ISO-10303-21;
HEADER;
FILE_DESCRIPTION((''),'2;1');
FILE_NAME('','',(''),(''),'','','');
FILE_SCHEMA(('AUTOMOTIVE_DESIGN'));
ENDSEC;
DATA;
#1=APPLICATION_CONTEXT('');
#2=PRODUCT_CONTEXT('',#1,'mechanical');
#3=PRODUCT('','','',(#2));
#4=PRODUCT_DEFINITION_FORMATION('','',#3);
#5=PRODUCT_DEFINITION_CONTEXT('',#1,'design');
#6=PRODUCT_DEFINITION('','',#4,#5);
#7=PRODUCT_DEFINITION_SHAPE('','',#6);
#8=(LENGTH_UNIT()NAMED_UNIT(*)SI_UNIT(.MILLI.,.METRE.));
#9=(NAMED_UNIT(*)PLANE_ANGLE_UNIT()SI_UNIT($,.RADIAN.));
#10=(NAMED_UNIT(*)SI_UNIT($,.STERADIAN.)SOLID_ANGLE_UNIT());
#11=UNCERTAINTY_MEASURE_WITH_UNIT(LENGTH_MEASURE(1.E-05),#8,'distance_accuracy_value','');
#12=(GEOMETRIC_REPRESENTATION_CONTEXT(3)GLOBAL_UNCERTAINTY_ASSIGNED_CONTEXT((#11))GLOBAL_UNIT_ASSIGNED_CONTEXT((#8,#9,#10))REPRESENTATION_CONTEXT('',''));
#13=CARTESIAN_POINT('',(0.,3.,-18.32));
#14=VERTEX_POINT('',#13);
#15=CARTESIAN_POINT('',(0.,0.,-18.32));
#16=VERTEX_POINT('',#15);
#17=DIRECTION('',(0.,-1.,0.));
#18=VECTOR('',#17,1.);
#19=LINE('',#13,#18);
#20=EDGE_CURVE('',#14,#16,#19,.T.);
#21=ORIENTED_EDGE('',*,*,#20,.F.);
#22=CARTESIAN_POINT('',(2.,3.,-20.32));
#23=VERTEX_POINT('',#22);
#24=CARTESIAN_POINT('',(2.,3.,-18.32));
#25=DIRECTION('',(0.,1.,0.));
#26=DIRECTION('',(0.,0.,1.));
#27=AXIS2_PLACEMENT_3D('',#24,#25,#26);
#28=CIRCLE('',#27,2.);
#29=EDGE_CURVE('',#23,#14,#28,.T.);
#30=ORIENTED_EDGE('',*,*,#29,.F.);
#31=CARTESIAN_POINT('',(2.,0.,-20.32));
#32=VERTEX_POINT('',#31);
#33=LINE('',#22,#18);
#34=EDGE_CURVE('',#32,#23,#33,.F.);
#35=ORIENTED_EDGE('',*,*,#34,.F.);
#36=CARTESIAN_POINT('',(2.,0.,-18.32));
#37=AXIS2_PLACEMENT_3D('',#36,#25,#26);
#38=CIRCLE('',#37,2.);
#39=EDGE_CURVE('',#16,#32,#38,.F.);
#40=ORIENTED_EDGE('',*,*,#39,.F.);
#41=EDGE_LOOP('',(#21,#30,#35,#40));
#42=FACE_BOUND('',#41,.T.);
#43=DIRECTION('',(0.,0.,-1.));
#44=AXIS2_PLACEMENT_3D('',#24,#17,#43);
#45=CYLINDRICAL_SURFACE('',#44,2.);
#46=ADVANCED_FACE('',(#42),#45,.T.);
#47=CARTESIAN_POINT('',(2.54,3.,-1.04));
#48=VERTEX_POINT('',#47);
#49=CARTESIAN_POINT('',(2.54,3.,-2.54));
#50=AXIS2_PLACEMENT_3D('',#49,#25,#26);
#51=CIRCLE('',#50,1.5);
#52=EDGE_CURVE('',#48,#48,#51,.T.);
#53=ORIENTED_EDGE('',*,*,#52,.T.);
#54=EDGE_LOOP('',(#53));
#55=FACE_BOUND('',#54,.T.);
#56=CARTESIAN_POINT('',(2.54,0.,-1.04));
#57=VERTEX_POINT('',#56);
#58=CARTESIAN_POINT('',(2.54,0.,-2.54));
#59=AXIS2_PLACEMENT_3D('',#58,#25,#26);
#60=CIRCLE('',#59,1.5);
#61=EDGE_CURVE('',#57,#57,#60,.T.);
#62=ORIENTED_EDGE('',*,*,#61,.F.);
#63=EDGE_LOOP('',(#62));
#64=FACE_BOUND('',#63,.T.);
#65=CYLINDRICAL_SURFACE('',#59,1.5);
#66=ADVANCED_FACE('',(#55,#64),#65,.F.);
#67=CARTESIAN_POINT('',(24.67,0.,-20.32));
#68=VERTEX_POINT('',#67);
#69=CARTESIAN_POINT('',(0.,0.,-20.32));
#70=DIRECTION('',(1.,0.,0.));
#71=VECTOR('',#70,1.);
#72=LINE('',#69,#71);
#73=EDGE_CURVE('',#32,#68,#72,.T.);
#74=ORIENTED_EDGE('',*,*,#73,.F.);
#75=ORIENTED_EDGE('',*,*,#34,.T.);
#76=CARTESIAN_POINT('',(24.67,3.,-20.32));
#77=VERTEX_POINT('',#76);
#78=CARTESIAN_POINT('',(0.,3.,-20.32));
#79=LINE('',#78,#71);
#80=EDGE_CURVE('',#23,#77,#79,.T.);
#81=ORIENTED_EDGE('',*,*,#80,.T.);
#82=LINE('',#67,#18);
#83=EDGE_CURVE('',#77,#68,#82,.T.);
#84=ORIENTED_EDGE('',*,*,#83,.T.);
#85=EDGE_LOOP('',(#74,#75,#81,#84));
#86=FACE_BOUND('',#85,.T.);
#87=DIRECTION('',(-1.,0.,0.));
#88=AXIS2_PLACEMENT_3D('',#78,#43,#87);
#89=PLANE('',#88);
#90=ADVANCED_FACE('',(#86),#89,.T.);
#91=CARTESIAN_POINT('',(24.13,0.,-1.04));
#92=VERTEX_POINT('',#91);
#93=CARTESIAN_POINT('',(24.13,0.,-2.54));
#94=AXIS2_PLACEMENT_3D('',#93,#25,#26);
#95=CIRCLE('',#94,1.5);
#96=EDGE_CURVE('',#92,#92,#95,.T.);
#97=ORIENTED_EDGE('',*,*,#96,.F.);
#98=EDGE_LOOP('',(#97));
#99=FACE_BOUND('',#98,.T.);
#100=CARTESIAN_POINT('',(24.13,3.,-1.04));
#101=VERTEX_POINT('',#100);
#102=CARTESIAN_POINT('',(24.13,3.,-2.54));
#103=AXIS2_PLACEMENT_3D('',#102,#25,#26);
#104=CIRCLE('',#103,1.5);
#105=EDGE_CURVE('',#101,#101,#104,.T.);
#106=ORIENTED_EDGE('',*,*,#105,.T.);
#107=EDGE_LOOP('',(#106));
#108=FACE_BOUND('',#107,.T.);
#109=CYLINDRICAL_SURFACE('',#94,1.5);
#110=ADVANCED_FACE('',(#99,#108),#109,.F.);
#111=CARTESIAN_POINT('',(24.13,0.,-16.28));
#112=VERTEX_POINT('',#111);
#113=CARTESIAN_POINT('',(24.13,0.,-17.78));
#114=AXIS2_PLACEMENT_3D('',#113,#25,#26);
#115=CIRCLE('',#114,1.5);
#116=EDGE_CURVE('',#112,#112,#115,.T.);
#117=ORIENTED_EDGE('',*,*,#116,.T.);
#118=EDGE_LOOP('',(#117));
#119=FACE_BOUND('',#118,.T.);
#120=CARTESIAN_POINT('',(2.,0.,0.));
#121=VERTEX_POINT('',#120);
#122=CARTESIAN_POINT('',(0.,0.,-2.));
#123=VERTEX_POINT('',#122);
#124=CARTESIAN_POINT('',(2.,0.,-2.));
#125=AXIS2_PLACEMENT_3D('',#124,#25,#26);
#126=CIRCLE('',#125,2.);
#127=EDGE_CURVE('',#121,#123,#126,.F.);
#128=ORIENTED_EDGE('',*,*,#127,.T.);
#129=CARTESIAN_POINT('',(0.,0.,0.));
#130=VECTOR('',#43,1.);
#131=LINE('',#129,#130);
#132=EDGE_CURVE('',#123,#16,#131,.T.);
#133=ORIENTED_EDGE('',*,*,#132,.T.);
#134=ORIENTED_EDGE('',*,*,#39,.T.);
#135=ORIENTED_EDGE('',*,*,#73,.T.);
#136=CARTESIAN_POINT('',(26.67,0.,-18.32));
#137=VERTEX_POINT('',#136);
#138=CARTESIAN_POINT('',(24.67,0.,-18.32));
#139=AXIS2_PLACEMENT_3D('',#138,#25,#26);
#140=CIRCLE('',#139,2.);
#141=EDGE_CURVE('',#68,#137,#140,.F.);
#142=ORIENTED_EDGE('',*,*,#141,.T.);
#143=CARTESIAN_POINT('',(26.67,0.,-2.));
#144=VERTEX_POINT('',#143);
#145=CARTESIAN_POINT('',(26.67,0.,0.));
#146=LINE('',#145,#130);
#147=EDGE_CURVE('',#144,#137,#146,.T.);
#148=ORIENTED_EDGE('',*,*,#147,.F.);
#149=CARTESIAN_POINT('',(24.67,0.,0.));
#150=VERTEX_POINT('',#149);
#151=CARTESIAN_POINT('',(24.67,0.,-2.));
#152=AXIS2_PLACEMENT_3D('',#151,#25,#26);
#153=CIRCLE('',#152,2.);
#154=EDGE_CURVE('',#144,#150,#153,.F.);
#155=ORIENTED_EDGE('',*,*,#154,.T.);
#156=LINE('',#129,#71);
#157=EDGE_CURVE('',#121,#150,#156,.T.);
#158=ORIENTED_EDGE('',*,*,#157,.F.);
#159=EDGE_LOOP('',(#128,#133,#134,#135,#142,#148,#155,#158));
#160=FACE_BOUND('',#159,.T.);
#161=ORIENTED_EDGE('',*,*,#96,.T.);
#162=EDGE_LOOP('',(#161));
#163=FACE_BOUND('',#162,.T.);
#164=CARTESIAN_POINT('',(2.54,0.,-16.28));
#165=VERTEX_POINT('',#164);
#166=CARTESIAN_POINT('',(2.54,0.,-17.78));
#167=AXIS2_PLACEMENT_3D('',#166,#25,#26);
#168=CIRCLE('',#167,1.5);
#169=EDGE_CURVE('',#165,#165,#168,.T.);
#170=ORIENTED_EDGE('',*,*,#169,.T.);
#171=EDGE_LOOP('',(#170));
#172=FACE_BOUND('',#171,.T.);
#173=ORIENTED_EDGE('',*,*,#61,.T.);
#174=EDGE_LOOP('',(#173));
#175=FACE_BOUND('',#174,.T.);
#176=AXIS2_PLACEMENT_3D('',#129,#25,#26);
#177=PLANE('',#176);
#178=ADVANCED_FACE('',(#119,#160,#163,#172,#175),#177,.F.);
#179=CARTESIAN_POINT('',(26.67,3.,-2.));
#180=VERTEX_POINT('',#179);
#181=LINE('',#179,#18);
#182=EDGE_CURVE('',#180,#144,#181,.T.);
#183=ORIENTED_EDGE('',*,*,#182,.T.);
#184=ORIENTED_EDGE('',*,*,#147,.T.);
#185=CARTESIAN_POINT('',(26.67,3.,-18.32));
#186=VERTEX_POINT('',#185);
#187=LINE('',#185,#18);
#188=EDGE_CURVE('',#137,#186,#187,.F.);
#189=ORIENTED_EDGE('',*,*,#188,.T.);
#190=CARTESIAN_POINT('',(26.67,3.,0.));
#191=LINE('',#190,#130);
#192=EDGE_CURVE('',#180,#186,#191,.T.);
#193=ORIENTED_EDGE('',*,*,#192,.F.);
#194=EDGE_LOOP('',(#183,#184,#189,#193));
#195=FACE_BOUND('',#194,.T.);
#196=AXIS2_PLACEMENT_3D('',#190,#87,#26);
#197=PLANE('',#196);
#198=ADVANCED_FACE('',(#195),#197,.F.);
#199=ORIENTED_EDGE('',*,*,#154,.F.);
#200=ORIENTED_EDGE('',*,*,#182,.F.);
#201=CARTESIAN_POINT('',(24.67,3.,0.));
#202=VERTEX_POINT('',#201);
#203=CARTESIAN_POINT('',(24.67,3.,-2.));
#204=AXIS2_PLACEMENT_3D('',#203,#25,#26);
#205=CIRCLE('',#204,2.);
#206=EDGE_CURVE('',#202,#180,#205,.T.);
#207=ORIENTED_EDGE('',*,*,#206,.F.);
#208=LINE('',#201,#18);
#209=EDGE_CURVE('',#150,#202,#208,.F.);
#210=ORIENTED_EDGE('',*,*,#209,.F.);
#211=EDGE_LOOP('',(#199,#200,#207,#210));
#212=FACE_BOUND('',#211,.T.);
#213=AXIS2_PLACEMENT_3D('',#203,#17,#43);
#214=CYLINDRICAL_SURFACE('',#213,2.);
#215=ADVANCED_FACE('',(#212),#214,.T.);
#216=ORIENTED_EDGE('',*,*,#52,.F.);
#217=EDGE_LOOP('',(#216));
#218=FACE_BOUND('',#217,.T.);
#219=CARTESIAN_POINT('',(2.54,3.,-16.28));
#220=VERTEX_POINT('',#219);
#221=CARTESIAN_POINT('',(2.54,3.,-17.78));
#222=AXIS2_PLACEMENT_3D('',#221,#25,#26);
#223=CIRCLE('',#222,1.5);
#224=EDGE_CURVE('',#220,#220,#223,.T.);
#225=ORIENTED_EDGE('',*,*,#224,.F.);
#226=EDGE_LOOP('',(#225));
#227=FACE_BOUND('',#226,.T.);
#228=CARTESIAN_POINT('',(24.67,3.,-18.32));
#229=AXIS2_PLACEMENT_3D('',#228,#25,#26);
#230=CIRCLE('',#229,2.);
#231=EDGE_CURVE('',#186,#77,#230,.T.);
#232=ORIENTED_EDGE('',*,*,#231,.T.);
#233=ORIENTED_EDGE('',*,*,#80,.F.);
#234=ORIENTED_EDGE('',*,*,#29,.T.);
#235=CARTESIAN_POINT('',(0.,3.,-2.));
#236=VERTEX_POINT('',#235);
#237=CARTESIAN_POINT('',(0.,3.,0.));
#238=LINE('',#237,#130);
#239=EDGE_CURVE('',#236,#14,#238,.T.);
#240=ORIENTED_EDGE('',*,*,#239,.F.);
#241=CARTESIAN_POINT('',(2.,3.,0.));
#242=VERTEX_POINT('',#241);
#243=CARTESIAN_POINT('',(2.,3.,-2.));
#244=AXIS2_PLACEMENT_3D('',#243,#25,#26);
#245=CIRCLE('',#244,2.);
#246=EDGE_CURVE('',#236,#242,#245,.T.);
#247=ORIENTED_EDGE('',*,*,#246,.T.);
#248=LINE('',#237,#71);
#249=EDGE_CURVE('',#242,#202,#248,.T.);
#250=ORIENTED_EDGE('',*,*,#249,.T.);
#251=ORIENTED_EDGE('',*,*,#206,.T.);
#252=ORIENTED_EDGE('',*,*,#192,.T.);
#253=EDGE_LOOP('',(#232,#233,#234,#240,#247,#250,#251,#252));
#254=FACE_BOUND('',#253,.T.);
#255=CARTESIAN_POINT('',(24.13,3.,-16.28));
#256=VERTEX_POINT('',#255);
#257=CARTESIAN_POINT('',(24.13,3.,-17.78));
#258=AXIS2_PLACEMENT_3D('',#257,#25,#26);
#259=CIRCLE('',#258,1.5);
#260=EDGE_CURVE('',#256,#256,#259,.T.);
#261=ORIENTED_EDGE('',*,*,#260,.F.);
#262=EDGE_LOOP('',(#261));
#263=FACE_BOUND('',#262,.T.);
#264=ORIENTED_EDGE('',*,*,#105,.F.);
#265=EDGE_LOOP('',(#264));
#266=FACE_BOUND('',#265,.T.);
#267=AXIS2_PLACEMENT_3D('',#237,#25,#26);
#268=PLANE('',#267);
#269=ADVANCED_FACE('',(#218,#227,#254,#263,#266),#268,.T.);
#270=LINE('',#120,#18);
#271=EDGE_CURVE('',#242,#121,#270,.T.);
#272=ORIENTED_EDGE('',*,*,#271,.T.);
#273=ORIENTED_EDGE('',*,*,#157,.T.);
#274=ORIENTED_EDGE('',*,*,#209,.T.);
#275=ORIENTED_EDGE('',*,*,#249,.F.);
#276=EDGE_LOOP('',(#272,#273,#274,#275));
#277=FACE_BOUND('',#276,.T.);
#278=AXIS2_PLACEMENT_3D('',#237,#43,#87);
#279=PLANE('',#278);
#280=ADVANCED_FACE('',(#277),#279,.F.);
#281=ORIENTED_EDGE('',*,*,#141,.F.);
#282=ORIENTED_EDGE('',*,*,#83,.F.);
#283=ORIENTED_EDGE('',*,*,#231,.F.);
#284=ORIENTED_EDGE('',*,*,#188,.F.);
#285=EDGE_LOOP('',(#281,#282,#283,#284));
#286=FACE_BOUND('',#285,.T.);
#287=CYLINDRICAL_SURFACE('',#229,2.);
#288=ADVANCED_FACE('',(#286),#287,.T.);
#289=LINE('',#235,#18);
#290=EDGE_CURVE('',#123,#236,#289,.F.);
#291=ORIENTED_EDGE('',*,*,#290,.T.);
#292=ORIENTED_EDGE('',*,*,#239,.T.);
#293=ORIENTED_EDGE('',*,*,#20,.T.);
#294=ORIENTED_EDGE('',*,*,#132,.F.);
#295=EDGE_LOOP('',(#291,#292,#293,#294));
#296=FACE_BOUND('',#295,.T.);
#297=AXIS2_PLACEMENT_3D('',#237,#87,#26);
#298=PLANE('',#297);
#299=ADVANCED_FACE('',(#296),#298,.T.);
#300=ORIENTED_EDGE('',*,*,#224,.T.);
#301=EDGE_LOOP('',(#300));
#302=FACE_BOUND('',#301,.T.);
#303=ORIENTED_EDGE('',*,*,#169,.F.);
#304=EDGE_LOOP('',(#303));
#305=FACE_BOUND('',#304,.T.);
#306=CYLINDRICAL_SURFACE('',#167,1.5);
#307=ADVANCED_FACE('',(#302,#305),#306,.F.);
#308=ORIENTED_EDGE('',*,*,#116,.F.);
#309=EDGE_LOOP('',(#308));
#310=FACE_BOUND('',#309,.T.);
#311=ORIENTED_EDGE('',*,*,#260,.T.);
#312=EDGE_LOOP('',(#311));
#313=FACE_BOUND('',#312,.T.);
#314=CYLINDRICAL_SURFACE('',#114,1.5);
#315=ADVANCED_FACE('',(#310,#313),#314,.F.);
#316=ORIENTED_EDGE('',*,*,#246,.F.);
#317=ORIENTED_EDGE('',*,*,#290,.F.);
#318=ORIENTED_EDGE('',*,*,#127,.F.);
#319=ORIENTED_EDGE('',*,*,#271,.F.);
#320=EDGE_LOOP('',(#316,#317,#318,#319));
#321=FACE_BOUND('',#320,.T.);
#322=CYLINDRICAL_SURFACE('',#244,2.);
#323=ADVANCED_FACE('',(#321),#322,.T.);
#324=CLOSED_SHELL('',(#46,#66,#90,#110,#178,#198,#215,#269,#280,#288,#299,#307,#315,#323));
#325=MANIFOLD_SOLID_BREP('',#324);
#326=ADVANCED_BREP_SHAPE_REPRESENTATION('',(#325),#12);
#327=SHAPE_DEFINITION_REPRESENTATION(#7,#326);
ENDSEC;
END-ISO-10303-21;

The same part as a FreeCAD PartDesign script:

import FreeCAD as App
import Part
import Sketcher

V = App.Vector


def edges_at(feature, points):
    """Names of the edges that pass closest to the given points."""
    edges = feature.Shape.Edges
    near = lambda p: min(range(len(edges)), key=lambda i: edges[i].distToShape(Part.Vertex(*p))[0])
    return sorted({f"Edge{near(p) + 1}" for p in points})

doc = App.newDocument("Part")
body = doc.addObject("PartDesign::Body", "Body")

# Sketch on XZ plane
sketch1 = doc.addObject("Sketcher::SketchObject", "Sketch")
body.addObject(sketch1)
sketch1.AttachmentSupport = (doc.XZ_Plane, [""])
sketch1.MapMode = "FlatFace"
sketch1.addGeometry(Part.LineSegment(V(0, -20, 0), V(0, 0, 0)), False)
sketch1.addGeometry(Part.LineSegment(V(0, 0, 0), V(27, 0, 0)), False)
sketch1.addGeometry(Part.LineSegment(V(27, 0, 0), V(27, -20, 0)), False)
sketch1.addGeometry(Part.LineSegment(V(27, -20, 0), V(0, -20, 0)), False)
sketch1.addConstraint(Sketcher.Constraint("Coincident", 0, 2, 1, 1))
sketch1.addConstraint(Sketcher.Constraint("Coincident", 1, 2, 2, 1))
sketch1.addConstraint(Sketcher.Constraint("Coincident", 2, 2, 3, 1))
sketch1.addConstraint(Sketcher.Constraint("Coincident", 3, 2, 0, 1))
sketch1.addConstraint(Sketcher.Constraint("Vertical", 0))
sketch1.addConstraint(Sketcher.Constraint("Horizontal", 1))
sketch1.addConstraint(Sketcher.Constraint("Vertical", 2))
sketch1.addConstraint(Sketcher.Constraint("Horizontal", 3))
sketch1.addConstraint(Sketcher.Constraint("Coincident", 0, 2, -1, 1))
sketch1.addConstraint(Sketcher.Constraint("DistanceX", 1, 1, 1, 2, 26.67))
sketch1.addConstraint(Sketcher.Constraint("DistanceY", 0, 1, 0, 2, 20.32))
pad1 = doc.addObject("PartDesign::Pad", "Pad")
body.addObject(pad1)
pad1.Profile = sketch1
pad1.Length = 3
pad1.Reversed = True

# Sketch on XZ plane
sketch2 = doc.addObject("Sketcher::SketchObject", "Sketch001")
body.addObject(sketch2)
sketch2.AttachmentSupport = (doc.XZ_Plane, [""])
sketch2.MapMode = "FlatFace"
sketch2.AttachmentOffset = App.Placement(V(0, 0, -3), App.Rotation())
sketch2.addGeometry(Part.Circle(V(24.1, -2.5, 0), V(0, 0, 1), 1.5), False)
sketch2.addGeometry(Part.Circle(V(2.5, -2.5, 0), V(0, 0, 1), 1.5), False)
sketch2.addGeometry(Part.Circle(V(2.5, -17.8, 0), V(0, 0, 1), 1.5), False)
sketch2.addGeometry(Part.Circle(V(24.1, -17.8, 0), V(0, 0, 1), 1.5), False)
sketch2.addConstraint(Sketcher.Constraint("Equal", 0, 1))
sketch2.addConstraint(Sketcher.Constraint("Equal", 1, 2))
sketch2.addConstraint(Sketcher.Constraint("Equal", 2, 3))
sketch2.addConstraint(Sketcher.Constraint("Horizontal", 0, 3, 1, 3))
sketch2.addConstraint(Sketcher.Constraint("Horizontal", 2, 3, 3, 3))
sketch2.addConstraint(Sketcher.Constraint("Vertical", 1, 3, 2, 3))
sketch2.addConstraint(Sketcher.Constraint("Vertical", 0, 3, 3, 3))
sketch2.addConstraint(Sketcher.Constraint("Diameter", 0, 3.0))
sketch2.addConstraint(Sketcher.Constraint("DistanceX", -1, 1, 0, 3, 24.13))
sketch2.addConstraint(Sketcher.Constraint("DistanceY", 0, 3, -1, 1, 2.54))
sketch2.addConstraint(Sketcher.Constraint("DistanceX", -1, 1, 1, 3, 2.54))
sketch2.addConstraint(Sketcher.Constraint("DistanceY", 2, 3, -1, 1, 17.78))
pocket1 = doc.addObject("PartDesign::Pocket", "Pocket")
body.addObject(pocket1)
pocket1.Profile = sketch2
pocket1.Type = "ThroughAll"
pocket1.Reversed = True
doc.recompute()

fillet = doc.addObject("PartDesign::Fillet", "Fillet")
body.addObject(fillet)
fillet.Base = (pocket1, edges_at(pocket1, [
    (0, 1.5, -20.32),
    (0, 1.5, 0),
    (26.67, 1.5, 0),
    (26.67, 1.5, -20.32),
]))
fillet.Radius = 2

doc.recompute()
